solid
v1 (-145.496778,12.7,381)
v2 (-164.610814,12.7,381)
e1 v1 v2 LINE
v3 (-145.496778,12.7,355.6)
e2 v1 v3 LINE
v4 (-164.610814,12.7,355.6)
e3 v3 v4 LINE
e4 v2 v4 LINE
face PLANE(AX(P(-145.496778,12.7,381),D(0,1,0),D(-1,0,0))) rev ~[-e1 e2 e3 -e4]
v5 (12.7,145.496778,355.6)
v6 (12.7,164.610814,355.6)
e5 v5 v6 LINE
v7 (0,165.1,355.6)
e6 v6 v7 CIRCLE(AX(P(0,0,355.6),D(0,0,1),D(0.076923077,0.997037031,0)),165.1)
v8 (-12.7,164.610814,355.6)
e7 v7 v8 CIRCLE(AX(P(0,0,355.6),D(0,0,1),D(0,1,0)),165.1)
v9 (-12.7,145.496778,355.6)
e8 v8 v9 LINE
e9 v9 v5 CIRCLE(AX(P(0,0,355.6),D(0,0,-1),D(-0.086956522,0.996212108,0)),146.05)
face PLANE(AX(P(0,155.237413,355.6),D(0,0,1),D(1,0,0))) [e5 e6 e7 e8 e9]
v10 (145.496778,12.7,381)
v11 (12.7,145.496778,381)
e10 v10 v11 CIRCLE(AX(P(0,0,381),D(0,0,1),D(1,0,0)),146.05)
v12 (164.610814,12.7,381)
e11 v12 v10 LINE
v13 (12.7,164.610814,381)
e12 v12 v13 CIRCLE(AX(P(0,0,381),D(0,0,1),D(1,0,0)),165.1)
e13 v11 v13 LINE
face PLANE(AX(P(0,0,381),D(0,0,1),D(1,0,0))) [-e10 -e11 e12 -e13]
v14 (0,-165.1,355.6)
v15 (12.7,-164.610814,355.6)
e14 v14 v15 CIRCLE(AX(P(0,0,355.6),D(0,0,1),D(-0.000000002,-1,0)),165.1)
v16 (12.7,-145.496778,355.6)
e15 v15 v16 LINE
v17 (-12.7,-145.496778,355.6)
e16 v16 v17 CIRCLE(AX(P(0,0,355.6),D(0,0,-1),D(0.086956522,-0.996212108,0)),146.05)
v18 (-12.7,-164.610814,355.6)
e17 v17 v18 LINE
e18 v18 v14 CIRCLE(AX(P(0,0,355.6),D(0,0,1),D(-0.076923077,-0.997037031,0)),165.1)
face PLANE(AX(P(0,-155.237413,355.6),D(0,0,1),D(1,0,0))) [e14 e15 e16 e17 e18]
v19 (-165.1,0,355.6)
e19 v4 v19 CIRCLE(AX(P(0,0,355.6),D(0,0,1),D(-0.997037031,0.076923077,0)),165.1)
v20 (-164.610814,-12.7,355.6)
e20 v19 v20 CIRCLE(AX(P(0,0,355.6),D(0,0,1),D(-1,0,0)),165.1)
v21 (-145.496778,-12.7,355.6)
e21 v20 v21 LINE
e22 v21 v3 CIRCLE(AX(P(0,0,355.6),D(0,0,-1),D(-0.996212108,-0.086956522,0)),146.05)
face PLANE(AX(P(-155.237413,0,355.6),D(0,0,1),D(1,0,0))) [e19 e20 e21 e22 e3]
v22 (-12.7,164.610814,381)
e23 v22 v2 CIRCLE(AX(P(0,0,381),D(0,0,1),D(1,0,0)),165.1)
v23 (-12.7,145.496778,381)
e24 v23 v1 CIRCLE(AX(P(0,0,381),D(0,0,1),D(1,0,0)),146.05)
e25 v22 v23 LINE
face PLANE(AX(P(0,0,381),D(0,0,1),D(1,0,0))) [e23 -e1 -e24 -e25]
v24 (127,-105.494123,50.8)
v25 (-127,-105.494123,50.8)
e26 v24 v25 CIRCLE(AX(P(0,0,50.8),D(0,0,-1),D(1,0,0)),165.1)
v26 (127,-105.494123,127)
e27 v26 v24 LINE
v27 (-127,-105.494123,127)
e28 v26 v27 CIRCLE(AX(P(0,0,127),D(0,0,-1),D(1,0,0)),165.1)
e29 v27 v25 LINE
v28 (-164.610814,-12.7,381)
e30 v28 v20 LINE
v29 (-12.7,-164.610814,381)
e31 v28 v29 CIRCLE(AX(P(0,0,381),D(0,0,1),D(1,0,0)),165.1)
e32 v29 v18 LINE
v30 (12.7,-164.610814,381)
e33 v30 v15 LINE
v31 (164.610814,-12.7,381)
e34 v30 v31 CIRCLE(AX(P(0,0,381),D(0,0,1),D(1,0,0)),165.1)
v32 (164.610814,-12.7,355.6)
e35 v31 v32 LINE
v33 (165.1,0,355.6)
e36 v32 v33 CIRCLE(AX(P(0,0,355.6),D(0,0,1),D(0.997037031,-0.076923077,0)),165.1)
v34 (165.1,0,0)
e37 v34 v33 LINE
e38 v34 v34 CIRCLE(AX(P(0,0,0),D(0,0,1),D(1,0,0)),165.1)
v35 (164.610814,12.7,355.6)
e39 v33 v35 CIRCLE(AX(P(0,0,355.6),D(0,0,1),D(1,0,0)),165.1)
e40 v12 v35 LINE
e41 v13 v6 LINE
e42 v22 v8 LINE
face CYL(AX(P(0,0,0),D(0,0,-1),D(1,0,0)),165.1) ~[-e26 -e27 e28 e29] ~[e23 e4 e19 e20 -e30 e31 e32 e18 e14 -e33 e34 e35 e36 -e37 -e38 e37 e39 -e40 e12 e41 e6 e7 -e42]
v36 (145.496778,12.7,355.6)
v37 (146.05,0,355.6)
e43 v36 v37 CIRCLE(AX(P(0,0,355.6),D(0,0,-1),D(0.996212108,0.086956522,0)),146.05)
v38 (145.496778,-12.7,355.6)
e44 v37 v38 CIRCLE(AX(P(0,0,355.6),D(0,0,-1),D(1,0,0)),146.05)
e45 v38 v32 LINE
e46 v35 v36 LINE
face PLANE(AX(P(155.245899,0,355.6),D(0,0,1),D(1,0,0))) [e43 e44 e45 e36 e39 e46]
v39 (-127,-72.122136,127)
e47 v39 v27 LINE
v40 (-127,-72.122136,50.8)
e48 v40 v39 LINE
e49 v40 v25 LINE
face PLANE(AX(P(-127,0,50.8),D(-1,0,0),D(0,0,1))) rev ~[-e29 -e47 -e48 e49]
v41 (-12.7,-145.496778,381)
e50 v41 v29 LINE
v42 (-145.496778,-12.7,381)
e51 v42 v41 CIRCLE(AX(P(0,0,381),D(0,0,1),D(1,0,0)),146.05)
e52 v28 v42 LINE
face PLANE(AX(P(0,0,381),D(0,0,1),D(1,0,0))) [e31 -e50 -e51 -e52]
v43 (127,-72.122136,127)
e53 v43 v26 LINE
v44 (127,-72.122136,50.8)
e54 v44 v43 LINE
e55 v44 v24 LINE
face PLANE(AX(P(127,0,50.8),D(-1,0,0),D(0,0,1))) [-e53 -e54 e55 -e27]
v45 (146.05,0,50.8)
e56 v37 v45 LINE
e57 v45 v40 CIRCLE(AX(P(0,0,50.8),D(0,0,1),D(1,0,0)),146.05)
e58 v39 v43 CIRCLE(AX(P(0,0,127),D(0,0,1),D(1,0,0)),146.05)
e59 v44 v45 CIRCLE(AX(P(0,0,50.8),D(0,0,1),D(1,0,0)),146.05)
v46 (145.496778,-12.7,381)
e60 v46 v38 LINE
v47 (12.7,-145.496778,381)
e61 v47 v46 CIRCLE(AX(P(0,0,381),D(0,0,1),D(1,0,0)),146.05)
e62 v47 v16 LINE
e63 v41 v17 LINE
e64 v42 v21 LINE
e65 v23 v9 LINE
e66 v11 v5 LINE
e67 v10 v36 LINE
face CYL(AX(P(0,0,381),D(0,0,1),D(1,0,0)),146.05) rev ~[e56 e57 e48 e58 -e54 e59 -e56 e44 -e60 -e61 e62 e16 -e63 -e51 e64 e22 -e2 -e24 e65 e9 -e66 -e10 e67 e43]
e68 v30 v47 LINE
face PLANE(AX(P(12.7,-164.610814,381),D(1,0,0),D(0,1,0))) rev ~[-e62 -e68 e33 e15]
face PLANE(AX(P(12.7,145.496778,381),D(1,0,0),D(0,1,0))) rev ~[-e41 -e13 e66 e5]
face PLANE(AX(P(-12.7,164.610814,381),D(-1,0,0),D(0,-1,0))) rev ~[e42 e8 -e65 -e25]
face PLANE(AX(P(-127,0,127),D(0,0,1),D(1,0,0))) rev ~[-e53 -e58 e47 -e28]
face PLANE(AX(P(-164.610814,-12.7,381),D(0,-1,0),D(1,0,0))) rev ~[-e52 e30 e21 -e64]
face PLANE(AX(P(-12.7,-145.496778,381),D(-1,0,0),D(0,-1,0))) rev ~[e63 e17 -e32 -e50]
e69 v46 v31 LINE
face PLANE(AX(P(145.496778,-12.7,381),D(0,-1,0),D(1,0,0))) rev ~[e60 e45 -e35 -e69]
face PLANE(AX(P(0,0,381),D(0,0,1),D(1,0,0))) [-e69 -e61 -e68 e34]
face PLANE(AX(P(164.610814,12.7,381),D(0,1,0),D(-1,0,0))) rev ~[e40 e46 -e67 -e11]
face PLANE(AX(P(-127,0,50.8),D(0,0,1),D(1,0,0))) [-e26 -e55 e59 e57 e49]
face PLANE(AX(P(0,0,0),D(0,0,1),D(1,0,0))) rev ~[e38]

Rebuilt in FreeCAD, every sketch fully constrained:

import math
import FreeCAD as App
import Part
import Sketcher
from FreeCAD import Vector
Q = App.Units.Quantity


def add_polygon(sketch, points):
    """Adds a closed chain of lines whose ends are joined by coincident constraints."""
    first, n = sketch.GeometryCount, len(points)
    for a, b in zip(points, points[1:] + points[:1]):
        sketch.addGeometry(Part.LineSegment(App.Vector(*a, 0), App.Vector(*b, 0)), False)
    for i in range(n):
        sketch.addConstraint(Sketcher.Constraint("Coincident", first + i, 2, first + (i + 1) % n, 1))

doc = App.newDocument("Part")
body = doc.addObject("PartDesign::Body", "Body")

sketch1 = body.newObject("Sketcher::SketchObject", "Sketch")
sketch1.AttachmentSupport = (doc.getObject("XY_Plane"), [""])
sketch1.MapMode = "FlatFace"
sketch1.addGeometry(Part.Circle(Vector(0, 0, 0), Vector(0, 0, 1), 165), False)
sketch1.addConstraint(Sketcher.Constraint("Coincident", 0, 3, -1, 1))
sketch1.addConstraint(Sketcher.Constraint("Diameter", 0, Q("13 in")))
pad1 = body.newObject("PartDesign::Pad", "Pad")
pad1.Profile = sketch1
pad1.Length = Q("15 in")

sketch2 = body.newObject("Sketcher::SketchObject", "Sketch001")
sketch2.AttachmentSupport = (doc.getObject("XY_Plane"), [""])
sketch2.MapMode = "FlatFace"
sketch2.AttachmentOffset = App.Placement(Vector(0, 0, 15 * 25.4), App.Rotation())
sketch2.addGeometry(Part.Circle(Vector(0, 0, 0), Vector(0, 0, 1), 146), False)
sketch2.addConstraint(Sketcher.Constraint("Coincident", 0, 3, -1, 1))
sketch2.addConstraint(Sketcher.Constraint("Diameter", 0, Q("11.5 in")))
pocket1 = body.newObject("PartDesign::Pocket", "Pocket")
pocket1.Profile = sketch2
pocket1.Length = Q("13 in")

sketch3 = body.newObject("Sketcher::SketchObject", "Sketch002")
sketch3.AttachmentSupport = (doc.getObject("XZ_Plane"), [""])
sketch3.MapMode = "FlatFace"
add_polygon(sketch3, [(-127, 127), (-127, 51), (127, 51), (127, 127)])
sketch3.addConstraint(Sketcher.Constraint("Vertical", 0))
sketch3.addConstraint(Sketcher.Constraint("Horizontal", 1))
sketch3.addConstraint(Sketcher.Constraint("Vertical", 2))
sketch3.addConstraint(Sketcher.Constraint("Horizontal", 3))
sketch3.addConstraint(Sketcher.Constraint("DistanceX", 1, 1, 1, 2, Q("10 in")))
sketch3.addConstraint(Sketcher.Constraint("DistanceY", 0, 2, 0, 1, Q("3 in")))
sketch3.addConstraint(Sketcher.Constraint("DistanceX", 0, 2, -1, 1, Q("5 in")))
sketch3.addConstraint(Sketcher.Constraint("DistanceY", -1, 1, 0, 2, Q("2 in")))
pocket2 = body.newObject("PartDesign::Pocket", "Pocket001")
pocket2.Profile = sketch3
pocket2.Length = Q("7 in")
pocket2.Reversed = True

sketch4 = body.newObject("Sketcher::SketchObject", "Sketch003")
sketch4.AttachmentSupport = (doc.getObject("XY_Plane"), [""])
sketch4.MapMode = "FlatFace"
sketch4.AttachmentOffset = App.Placement(Vector(0, 0, 15 * 25.4), App.Rotation())
sketch4.addGeometry(Part.ArcOfCircle(Part.Circle(Vector(0, 0, 0), Vector(0, 0, 1), 165), math.radians(85.59), math.radians(90)), False)
sketch4.addGeometry(Part.ArcOfCircle(Part.Circle(Vector(0, 0, 0), Vector(0, 0, 1), 165), math.radians(90), math.radians(94.41)), False)
sketch4.addGeometry(Part.LineSegment(Vector(-13, 165, 0), Vector(-13, 145, 0)), False)
sketch4.addGeometry(Part.ArcOfCircle(Part.Circle(Vector(0, 0, 0), Vector(0, 0, 1), 146), math.radians(85.01), math.radians(94.99)), False)
sketch4.addGeometry(Part.LineSegment(Vector(13, 145, 0), Vector(13, 165, 0)), False)
sketch4.addGeometry(Part.LineSegment(Vector(-145, 13, 0), Vector(-165, 13, 0)), False)
sketch4.addGeometry(Part.ArcOfCircle(Part.Circle(Vector(0, 0, 0), Vector(0, 0, 1), 165), math.radians(175.59), math.radians(180)), False)
sketch4.addGeometry(Part.ArcOfCircle(Part.Circle(Vector(0, 0, 0), Vector(0, 0, 1), 165), math.radians(180), math.radians(184.41)), False)
sketch4.addGeometry(Part.LineSegment(Vector(-165, -13, 0), Vector(-145, -13, 0)), False)
sketch4.addGeometry(Part.ArcOfCircle(Part.Circle(Vector(0, 0, 0), Vector(0, 0, 1), 146), math.radians(175.01), math.radians(184.99)), False)
sketch4.addGeometry(Part.ArcOfCircle(Part.Circle(Vector(0, 0, 0), Vector(0, 0, 1), 146), math.radians(-94.99), math.radians(-85.01)), False)
sketch4.addGeometry(Part.LineSegment(Vector(-13, -145, 0), Vector(-13, -165, 0)), False)
sketch4.addGeometry(Part.ArcOfCircle(Part.Circle(Vector(0, 0, 0), Vector(0, 0, 1), 165), math.radians(-94.41), math.radians(-90)), False)
sketch4.addGeometry(Part.ArcOfCircle(Part.Circle(Vector(0, 0, 0), Vector(0, 0, 1), 165), math.radians(-90), math.radians(-85.59)), False)
sketch4.addGeometry(Part.LineSegment(Vector(13, -165, 0), Vector(13, -145, 0)), False)
sketch4.addGeometry(Part.ArcOfCircle(Part.Circle(Vector(0, 0, 0), Vector(0, 0, 1), 165), math.radians(0), math.radians(4.41)), False)
sketch4.addGeometry(Part.LineSegment(Vector(165, 13, 0), Vector(145, 13, 0)), False)
sketch4.addGeometry(Part.ArcOfCircle(Part.Circle(Vector(0, 0, 0), Vector(0, 0, 1), 146), math.radians(0), math.radians(4.99)), False)
sketch4.addGeometry(Part.ArcOfCircle(Part.Circle(Vector(0, 0, 0), Vector(0, 0, 1), 146), math.radians(-4.99), math.radians(0)), False)
sketch4.addGeometry(Part.LineSegment(Vector(145, -13, 0), Vector(165, -13, 0)), False)
sketch4.addGeometry(Part.ArcOfCircle(Part.Circle(Vector(0, 0, 0), Vector(0, 0, 1), 165), math.radians(-4.41), math.radians(0)), False)
sketch4.addConstraint(Sketcher.Constraint("Tangent", 0, 2, 1, 1))
sketch4.addConstraint(Sketcher.Constraint("Coincident", 1, 2, 2, 1))
sketch4.addConstraint(Sketcher.Constraint("Coincident", 2, 2, 3, 2))
sketch4.addConstraint(Sketcher.Constraint("Coincident", 3, 1, 4, 1))
sketch4.addConstraint(Sketcher.Constraint("Coincident", 4, 2, 0, 1))
sketch4.addConstraint(Sketcher.Constraint("Coincident", 5, 2, 6, 1))
sketch4.addConstraint(Sketcher.Constraint("Tangent", 6, 2, 7, 1))
sketch4.addConstraint(Sketcher.Constraint("Coincident", 7, 2, 8, 1))
sketch4.addConstraint(Sketcher.Constraint("Coincident", 8, 2, 9, 2))
sketch4.addConstraint(Sketcher.Constraint("Coincident", 9, 1, 5, 1))
sketch4.addConstraint(Sketcher.Constraint("Coincident", 10, 1, 11, 1))
sketch4.addConstraint(Sketcher.Constraint("Coincident", 11, 2, 12, 1))
sketch4.addConstraint(Sketcher.Constraint("Tangent", 12, 2, 13, 1))
sketch4.addConstraint(Sketcher.Constraint("Coincident", 13, 2, 14, 1))
sketch4.addConstraint(Sketcher.Constraint("Coincident", 14, 2, 10, 2))
sketch4.addConstraint(Sketcher.Constraint("Coincident", 15, 2, 16, 1))
sketch4.addConstraint(Sketcher.Constraint("Coincident", 16, 2, 17, 2))
sketch4.addConstraint(Sketcher.Constraint("Tangent", 17, 1, 18, 2))
sketch4.addConstraint(Sketcher.Constraint("Coincident", 18, 1, 19, 1))
sketch4.addConstraint(Sketcher.Constraint("Coincident", 19, 2, 20, 1))
sketch4.addConstraint(Sketcher.Constraint("Tangent", 20, 2, 15, 1))
sketch4.addConstraint(Sketcher.Constraint("Vertical", 2))
sketch4.addConstraint(Sketcher.Constraint("Vertical", 4))
sketch4.addConstraint(Sketcher.Constraint("Horizontal", 5))
sketch4.addConstraint(Sketcher.Constraint("Horizontal", 8))
sketch4.addConstraint(Sketcher.Constraint("Vertical", 11))
sketch4.addConstraint(Sketcher.Constraint("Vertical", 14))
sketch4.addConstraint(Sketcher.Constraint("Horizontal", 16))
sketch4.addConstraint(Sketcher.Constraint("Horizontal", 19))
sketch4.addConstraint(Sketcher.Constraint("Coincident", 0, 3, -1, 1))
sketch4.addConstraint(Sketcher.Constraint("Coincident", 3, 3, -1, 1))
sketch4.addConstraint(Sketcher.Constraint("Coincident", 6, 3, -1, 1))
sketch4.addConstraint(Sketcher.Constraint("Coincident", 9, 3, -1, 1))
sketch4.addConstraint(Sketcher.Constraint("Coincident", 10, 3, -1, 1))
sketch4.addConstraint(Sketcher.Constraint("Coincident", 12, 3, -1, 1))
sketch4.addConstraint(Sketcher.Constraint("Coincident", 15, 3, -1, 1))
sketch4.addConstraint(Sketcher.Constraint("Coincident", 17, 3, -1, 1))
sketch4.addConstraint(Sketcher.Constraint("Equal", 0, 1))
sketch4.addConstraint(Sketcher.Constraint("Equal", 1, 6))
sketch4.addConstraint(Sketcher.Constraint("Equal", 6, 7))
sketch4.addConstraint(Sketcher.Constraint("Equal", 3, 9))
sketch4.addConstraint(Sketcher.Constraint("Equal", 9, 10))
sketch4.addConstraint(Sketcher.Constraint("Equal", 7, 12))
sketch4.addConstraint(Sketcher.Constraint("Equal", 12, 13))
sketch4.addConstraint(Sketcher.Constraint("Equal", 13, 15))
sketch4.addConstraint(Sketcher.Constraint("Equal", 10, 17))
sketch4.addConstraint(Sketcher.Constraint("Equal", 17, 18))
sketch4.addConstraint(Sketcher.Constraint("Equal", 15, 20))
sketch4.addConstraint(Sketcher.Constraint("PointOnObject", 0, 2, -2))
sketch4.addConstraint(Sketcher.Constraint("PointOnObject", 6, 2, -1))
sketch4.addConstraint(Sketcher.Constraint("PointOnObject", 12, 2, -2))
sketch4.addConstraint(Sketcher.Constraint("PointOnObject", 17, 1, -1))
sketch4.addConstraint(Sketcher.Constraint("PointOnObject", 20, 2, -1))
sketch4.addConstraint(Sketcher.Constraint("Horizontal", 2, 2, 3, 1))
sketch4.addConstraint(Sketcher.Constraint("Horizontal", 11, 2, 13, 2))
sketch4.addConstraint(Sketcher.Constraint("Horizontal", 9, 1, 15, 2))
sketch4.addConstraint(Sketcher.Constraint("Horizontal", 8, 2, 18, 1))
sketch4.addConstraint(Sketcher.Constraint("Vertical", 5, 2, 7, 2))
sketch4.addConstraint(Sketcher.Constraint("Vertical", 2, 2, 10, 1))
sketch4.addConstraint(Sketcher.Constraint("Equal", 19, 2))
sketch4.addConstraint(Sketcher.Constraint("Radius", 0, Q("6.5 in")))
sketch4.addConstraint(Sketcher.Constraint("Radius", 3, Q("5.75 in")))
sketch4.addConstraint(Sketcher.Constraint("DistanceX", 2, 2, 3, 1, Q("1 in")))
pocket3 = body.newObject("PartDesign::Pocket", "Pocket002")
pocket3.Profile = sketch4
pocket3.Length = Q("1 in")

doc.recompute()
